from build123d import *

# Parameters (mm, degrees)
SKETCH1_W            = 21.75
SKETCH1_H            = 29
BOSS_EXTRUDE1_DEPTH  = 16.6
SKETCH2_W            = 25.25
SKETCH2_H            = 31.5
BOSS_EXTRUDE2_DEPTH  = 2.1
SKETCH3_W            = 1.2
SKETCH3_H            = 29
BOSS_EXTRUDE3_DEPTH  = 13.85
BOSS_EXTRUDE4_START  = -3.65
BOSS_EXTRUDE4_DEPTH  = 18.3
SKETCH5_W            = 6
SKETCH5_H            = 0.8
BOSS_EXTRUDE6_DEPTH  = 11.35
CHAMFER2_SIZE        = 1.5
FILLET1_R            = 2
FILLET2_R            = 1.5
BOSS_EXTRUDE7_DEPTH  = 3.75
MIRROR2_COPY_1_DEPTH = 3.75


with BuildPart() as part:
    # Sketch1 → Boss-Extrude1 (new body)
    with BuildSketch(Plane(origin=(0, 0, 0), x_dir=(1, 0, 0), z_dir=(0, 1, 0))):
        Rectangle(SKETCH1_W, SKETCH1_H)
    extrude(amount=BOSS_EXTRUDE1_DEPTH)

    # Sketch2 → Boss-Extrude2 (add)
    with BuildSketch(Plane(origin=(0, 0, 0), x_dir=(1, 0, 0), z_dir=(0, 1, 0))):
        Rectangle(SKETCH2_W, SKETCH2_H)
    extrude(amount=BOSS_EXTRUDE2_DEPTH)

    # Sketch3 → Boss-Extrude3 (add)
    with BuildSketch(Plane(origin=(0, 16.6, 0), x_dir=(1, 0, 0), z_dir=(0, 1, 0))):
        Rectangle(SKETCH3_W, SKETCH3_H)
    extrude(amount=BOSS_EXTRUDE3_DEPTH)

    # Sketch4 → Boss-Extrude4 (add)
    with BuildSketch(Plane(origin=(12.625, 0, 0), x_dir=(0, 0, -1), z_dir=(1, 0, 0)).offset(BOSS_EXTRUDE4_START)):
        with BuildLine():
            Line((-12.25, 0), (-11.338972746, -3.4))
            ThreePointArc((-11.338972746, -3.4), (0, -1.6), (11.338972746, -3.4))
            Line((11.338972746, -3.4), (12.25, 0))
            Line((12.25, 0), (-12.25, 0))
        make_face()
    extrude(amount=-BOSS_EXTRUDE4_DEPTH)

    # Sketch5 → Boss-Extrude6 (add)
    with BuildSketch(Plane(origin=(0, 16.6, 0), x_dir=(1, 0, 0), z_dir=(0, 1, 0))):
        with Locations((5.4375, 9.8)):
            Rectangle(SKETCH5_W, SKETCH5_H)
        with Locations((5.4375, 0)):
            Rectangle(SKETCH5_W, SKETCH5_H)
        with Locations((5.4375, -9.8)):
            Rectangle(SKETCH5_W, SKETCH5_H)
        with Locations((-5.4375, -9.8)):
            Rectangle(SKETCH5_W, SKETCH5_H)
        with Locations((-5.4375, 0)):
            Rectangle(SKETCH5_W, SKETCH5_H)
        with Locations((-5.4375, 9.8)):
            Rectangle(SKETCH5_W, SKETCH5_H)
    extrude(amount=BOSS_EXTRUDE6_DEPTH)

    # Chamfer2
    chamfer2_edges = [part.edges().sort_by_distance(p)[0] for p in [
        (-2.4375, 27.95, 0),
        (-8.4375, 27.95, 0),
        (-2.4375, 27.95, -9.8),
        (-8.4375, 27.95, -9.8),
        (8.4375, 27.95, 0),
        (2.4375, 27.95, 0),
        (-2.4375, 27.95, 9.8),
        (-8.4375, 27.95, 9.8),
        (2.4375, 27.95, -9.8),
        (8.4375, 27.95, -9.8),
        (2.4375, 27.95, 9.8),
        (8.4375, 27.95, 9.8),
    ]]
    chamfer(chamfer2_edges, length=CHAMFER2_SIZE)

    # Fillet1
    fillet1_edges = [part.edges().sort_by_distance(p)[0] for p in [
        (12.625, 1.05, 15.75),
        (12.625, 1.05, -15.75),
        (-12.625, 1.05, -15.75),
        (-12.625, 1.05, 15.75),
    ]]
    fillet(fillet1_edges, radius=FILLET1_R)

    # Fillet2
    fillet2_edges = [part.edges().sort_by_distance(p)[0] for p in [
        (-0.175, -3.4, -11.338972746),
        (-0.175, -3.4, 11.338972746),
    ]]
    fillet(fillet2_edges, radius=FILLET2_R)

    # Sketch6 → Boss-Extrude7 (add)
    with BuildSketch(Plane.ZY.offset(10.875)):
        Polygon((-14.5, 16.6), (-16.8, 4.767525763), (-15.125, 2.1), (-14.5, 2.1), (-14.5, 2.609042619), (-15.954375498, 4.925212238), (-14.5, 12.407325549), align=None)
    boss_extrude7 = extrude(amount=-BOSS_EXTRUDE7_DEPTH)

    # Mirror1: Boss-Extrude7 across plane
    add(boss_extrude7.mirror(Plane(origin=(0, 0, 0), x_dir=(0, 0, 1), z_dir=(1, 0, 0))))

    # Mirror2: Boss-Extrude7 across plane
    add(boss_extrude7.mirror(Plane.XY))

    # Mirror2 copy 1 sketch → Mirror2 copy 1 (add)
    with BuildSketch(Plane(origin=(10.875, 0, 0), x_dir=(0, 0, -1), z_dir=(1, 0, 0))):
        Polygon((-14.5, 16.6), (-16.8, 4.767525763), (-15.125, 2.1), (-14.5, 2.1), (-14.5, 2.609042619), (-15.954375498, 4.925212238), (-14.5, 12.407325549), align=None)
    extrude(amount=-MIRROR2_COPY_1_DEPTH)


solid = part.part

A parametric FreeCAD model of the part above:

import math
import FreeCAD as App
import Part
import Sketcher

V = App.Vector
Q = App.Units.Quantity


def edges_at(feature, points):
    """Names of the edges that pass closest to the given points."""
    edges = feature.Shape.Edges
    near = lambda p: min(range(len(edges)), key=lambda i: edges[i].distToShape(Part.Vertex(*p))[0])
    return sorted({f"Edge{near(p) + 1}" for p in points})

doc = App.newDocument("Part")
body = doc.addObject("PartDesign::Body", "Body")

# Sketch on XZ plane
sketch1 = body.newObject("Sketcher::SketchObject", "Sketch")
sketch1.AttachmentSupport = (doc.getObject("XZ_Plane"), [""])
sketch1.MapMode = "FlatFace"
sketch1.addGeometry(Part.LineSegment(V(-11, -14, 0), V(-11, 14, 0)), False)
sketch1.addGeometry(Part.LineSegment(V(-11, 14, 0), V(11, 14, 0)), False)
sketch1.addGeometry(Part.LineSegment(V(11, 14, 0), V(11, -14, 0)), False)
sketch1.addGeometry(Part.LineSegment(V(11, -14, 0), V(-11, -14, 0)), False)
sketch1.addConstraint(Sketcher.Constraint("Coincident", 0, 2, 1, 1))
sketch1.addConstraint(Sketcher.Constraint("Coincident", 1, 2, 2, 1))
sketch1.addConstraint(Sketcher.Constraint("Coincident", 2, 2, 3, 1))
sketch1.addConstraint(Sketcher.Constraint("Coincident", 3, 2, 0, 1))
sketch1.addConstraint(Sketcher.Constraint("Vertical", 0))
sketch1.addConstraint(Sketcher.Constraint("Horizontal", 1))
sketch1.addConstraint(Sketcher.Constraint("Vertical", 2))
sketch1.addConstraint(Sketcher.Constraint("Horizontal", 3))
sketch1.addConstraint(Sketcher.Constraint("Symmetric", 0, 2, 2, 2, -1, 1))
sketch1.addConstraint(Sketcher.Constraint("DistanceY", 0, 1, 0, 2, Q("29 mm")))
sketch1.addConstraint(Sketcher.Constraint("DistanceX", 1, 1, 1, 2, Q("21.75 mm")))
pad1 = body.newObject("PartDesign::Pad", "Pad")
pad1.Profile = sketch1
pad1.Length = 16.6
pad1.Reversed = True

# Sketch on XZ plane
sketch2 = body.newObject("Sketcher::SketchObject", "Sketch001")
sketch2.AttachmentSupport = (doc.getObject("XZ_Plane"), [""])
sketch2.MapMode = "FlatFace"
sketch2.addGeometry(Part.LineSegment(V(-13, -16, 0), V(-13, 16, 0)), False)
sketch2.addGeometry(Part.LineSegment(V(-13, 16, 0), V(13, 16, 0)), False)
sketch2.addGeometry(Part.LineSegment(V(13, 16, 0), V(13, -16, 0)), False)
sketch2.addGeometry(Part.LineSegment(V(13, -16, 0), V(-13, -16, 0)), False)
sketch2.addConstraint(Sketcher.Constraint("Coincident", 0, 2, 1, 1))
sketch2.addConstraint(Sketcher.Constraint("Coincident", 1, 2, 2, 1))
sketch2.addConstraint(Sketcher.Constraint("Coincident", 2, 2, 3, 1))
sketch2.addConstraint(Sketcher.Constraint("Coincident", 3, 2, 0, 1))
sketch2.addConstraint(Sketcher.Constraint("Vertical", 0))
sketch2.addConstraint(Sketcher.Constraint("Horizontal", 1))
sketch2.addConstraint(Sketcher.Constraint("Vertical", 2))
sketch2.addConstraint(Sketcher.Constraint("Horizontal", 3))
sketch2.addConstraint(Sketcher.Constraint("Symmetric", 0, 2, 2, 2, -1, 1))
sketch2.addConstraint(Sketcher.Constraint("DistanceY", 0, 1, 0, 2, Q("31.5 mm")))
sketch2.addConstraint(Sketcher.Constraint("DistanceX", 1, 1, 1, 2, Q("25.25 mm")))
pad2 = body.newObject("PartDesign::Pad", "Pad001")
pad2.Profile = sketch2
pad2.Length = 2.1
pad2.Reversed = True

# Sketch on XZ plane
sketch3 = body.newObject("Sketcher::SketchObject", "Sketch002")
sketch3.AttachmentSupport = (doc.getObject("XZ_Plane"), [""])
sketch3.MapMode = "FlatFace"
sketch3.AttachmentOffset = App.Placement(V(0, 0, -16.6), App.Rotation())
sketch3.addGeometry(Part.LineSegment(V(-0.6, -14.5, 0), V(-0.6, 14.5, 0)), False)
sketch3.addGeometry(Part.LineSegment(V(-0.6, 14.5, 0), V(0.6, 14.5, 0)), False)
sketch3.addGeometry(Part.LineSegment(V(0.6, 14.5, 0), V(0.6, -14.5, 0)), False)
sketch3.addGeometry(Part.LineSegment(V(0.6, -14.5, 0), V(-0.6, -14.5, 0)), False)
sketch3.addConstraint(Sketcher.Constraint("Coincident", 0, 2, 1, 1))
sketch3.addConstraint(Sketcher.Constraint("Coincident", 1, 2, 2, 1))
sketch3.addConstraint(Sketcher.Constraint("Coincident", 2, 2, 3, 1))
sketch3.addConstraint(Sketcher.Constraint("Coincident", 3, 2, 0, 1))
sketch3.addConstraint(Sketcher.Constraint("Vertical", 0))
sketch3.addConstraint(Sketcher.Constraint("Horizontal", 1))
sketch3.addConstraint(Sketcher.Constraint("Vertical", 2))
sketch3.addConstraint(Sketcher.Constraint("Horizontal", 3))
sketch3.addConstraint(Sketcher.Constraint("Symmetric", 0, 2, 2, 2, -1, 1))
sketch3.addConstraint(Sketcher.Constraint("DistanceY", 0, 1, 0, 2, Q("29 mm")))
sketch3.addConstraint(Sketcher.Constraint("DistanceX", 1, 1, 1, 2, Q("1.2 mm")))
pad3 = body.newObject("PartDesign::Pad", "Pad002")
pad3.Profile = sketch3
pad3.Length = 13.85
pad3.Reversed = True

# Sketch on YZ plane
sketch4 = body.newObject("Sketcher::SketchObject", "Sketch003")
sketch4.AttachmentSupport = (doc.getObject("YZ_Plane"), [""])
sketch4.MapMode = "FlatFace"
sketch4.AttachmentOffset = App.Placement(V(0, 0, 8.975), App.Rotation())
sketch4.addGeometry(Part.LineSegment(V(0, 12.2, 0), V(-3.4, 11.3, 0)), False)
sketch4.addGeometry(Part.ArcOfCircle(Part.Circle(V(-38.2, 0, 0), V(0, 0, 1), 36.6), math.radians(-18), math.radians(18)), False)
sketch4.addGeometry(Part.LineSegment(V(-3.4, -11.3, 0), V(0, -12.2, 0)), False)
sketch4.addGeometry(Part.LineSegment(V(0, -12.2, 0), V(0, 12.2, 0)), False)
sketch4.addConstraint(Sketcher.Constraint("Coincident", 0, 2, 1, 2))
sketch4.addConstraint(Sketcher.Constraint("Coincident", 1, 1, 2, 1))
sketch4.addConstraint(Sketcher.Constraint("Coincident", 2, 2, 3, 1))
sketch4.addConstraint(Sketcher.Constraint("Coincident", 3, 2, 0, 1))
sketch4.addConstraint(Sketcher.Constraint("Vertical", 3))
sketch4.addConstraint(Sketcher.Constraint("Symmetric", 2, 2, 3, 2, -1, 1))
sketch4.addConstraint(Sketcher.Constraint("Symmetric", 0, 2, 1, 1, -1))
sketch4.addConstraint(Sketcher.Constraint("Angle", 0, Q("-165 deg")))
sketch4.addConstraint(Sketcher.Constraint("DistanceY", 3, 1, 3, 2, Q("24.5 mm")))
sketch4.addConstraint(Sketcher.Constraint("DistanceX", 0, 2, -1, 1, Q("3.4 mm")))
sketch4.addConstraint(Sketcher.Constraint("Radius", 1, Q("36.614529 mm")))
pad4 = body.newObject("PartDesign::Pad", "Pad003")
pad4.Profile = sketch4
pad4.Length = 18.3
pad4.Reversed = True

# Sketch on XZ plane
sketch5 = body.newObject("Sketcher::SketchObject", "Sketch004")
sketch5.AttachmentSupport = (doc.getObject("XZ_Plane"), [""])
sketch5.MapMode = "FlatFace"
sketch5.AttachmentOffset = App.Placement(V(0, 0, -16.6), App.Rotation())
sketch5.addGeometry(Part.LineSegment(V(2.4, -10.2, 0), V(2.4, -9.4, 0)), False)
sketch5.addGeometry(Part.LineSegment(V(2.4, -9.4, 0), V(8.4, -9.4, 0)), False)
sketch5.addGeometry(Part.LineSegment(V(8.4, -9.4, 0), V(8.4, -10.2, 0)), False)
sketch5.addGeometry(Part.LineSegment(V(8.4, -10.2, 0), V(2.4, -10.2, 0)), False)
sketch5.addGeometry(Part.LineSegment(V(2.4, -0.4, 0), V(2.4, 0.4, 0)), False)
sketch5.addGeometry(Part.LineSegment(V(2.4, 0.4, 0), V(8.4, 0.4, 0)), False)
sketch5.addGeometry(Part.LineSegment(V(8.4, 0.4, 0), V(8.4, -0.4, 0)), False)
sketch5.addGeometry(Part.LineSegment(V(8.4, -0.4, 0), V(2.4, -0.4, 0)), False)
sketch5.addGeometry(Part.LineSegment(V(2.4, 9.4, 0), V(2.4, 10.2, 0)), False)
sketch5.addGeometry(Part.LineSegment(V(2.4, 10.2, 0), V(8.4, 10.2, 0)), False)
sketch5.addGeometry(Part.LineSegment(V(8.4, 10.2, 0), V(8.4, 9.4, 0)), False)
sketch5.addGeometry(Part.LineSegment(V(8.4, 9.4, 0), V(2.4, 9.4, 0)), False)
sketch5.addGeometry(Part.LineSegment(V(-8.4, 9.4, 0), V(-8.4, 10.2, 0)), False)
sketch5.addGeometry(Part.LineSegment(V(-8.4, 10.2, 0), V(-2.4, 10.2, 0)), False)
sketch5.addGeometry(Part.LineSegment(V(-2.4, 10.2, 0), V(-2.4, 9.4, 0)), False)
sketch5.addGeometry(Part.LineSegment(V(-2.4, 9.4, 0), V(-8.4, 9.4, 0)), False)
sketch5.addGeometry(Part.LineSegment(V(-8.4, -0.4, 0), V(-8.4, 0.4, 0)), False)
sketch5.addGeometry(Part.LineSegment(V(-8.4, 0.4, 0), V(-2.4, 0.4, 0)), False)
sketch5.addGeometry(Part.LineSegment(V(-2.4, 0.4, 0), V(-2.4, -0.4, 0)), False)
sketch5.addGeometry(Part.LineSegment(V(-2.4, -0.4, 0), V(-8.4, -0.4, 0)), False)
sketch5.addGeometry(Part.LineSegment(V(-8.4, -10.2, 0), V(-8.4, -9.4, 0)), False)
sketch5.addGeometry(Part.LineSegment(V(-8.4, -9.4, 0), V(-2.4, -9.4, 0)), False)
sketch5.addGeometry(Part.LineSegment(V(-2.4, -9.4, 0), V(-2.4, -10.2, 0)), False)
sketch5.addGeometry(Part.LineSegment(V(-2.4, -10.2, 0), V(-8.4, -10.2, 0)), False)
sketch5.addConstraint(Sketcher.Constraint("Coincident", 0, 2, 1, 1))
sketch5.addConstraint(Sketcher.Constraint("Coincident", 1, 2, 2, 1))
sketch5.addConstraint(Sketcher.Constraint("Coincident", 2, 2, 3, 1))
sketch5.addConstraint(Sketcher.Constraint("Coincident", 3, 2, 0, 1))
sketch5.addConstraint(Sketcher.Constraint("Coincident", 4, 2, 5, 1))
sketch5.addConstraint(Sketcher.Constraint("Coincident", 5, 2, 6, 1))
sketch5.addConstraint(Sketcher.Constraint("Coincident", 6, 2, 7, 1))
sketch5.addConstraint(Sketcher.Constraint("Coincident", 7, 2, 4, 1))
sketch5.addConstraint(Sketcher.Constraint("Coincident", 8, 2, 9, 1))
sketch5.addConstraint(Sketcher.Constraint("Coincident", 9, 2, 10, 1))
sketch5.addConstraint(Sketcher.Constraint("Coincident", 10, 2, 11, 1))
sketch5.addConstraint(Sketcher.Constraint("Coincident", 11, 2, 8, 1))
sketch5.addConstraint(Sketcher.Constraint("Coincident", 12, 2, 13, 1))
sketch5.addConstraint(Sketcher.Constraint("Coincident", 13, 2, 14, 1))
sketch5.addConstraint(Sketcher.Constraint("Coincident", 14, 2, 15, 1))
sketch5.addConstraint(Sketcher.Constraint("Coincident", 15, 2, 12, 1))
sketch5.addConstraint(Sketcher.Constraint("Coincident", 16, 2, 17, 1))
sketch5.addConstraint(Sketcher.Constraint("Coincident", 17, 2, 18, 1))
sketch5.addConstraint(Sketcher.Constraint("Coincident", 18, 2, 19, 1))
sketch5.addConstraint(Sketcher.Constraint("Coincident", 19, 2, 16, 1))
sketch5.addConstraint(Sketcher.Constraint("Coincident", 20, 2, 21, 1))
sketch5.addConstraint(Sketcher.Constraint("Coincident", 21, 2, 22, 1))
sketch5.addConstraint(Sketcher.Constraint("Coincident", 22, 2, 23, 1))
sketch5.addConstraint(Sketcher.Constraint("Coincident", 23, 2, 20, 1))
sketch5.addConstraint(Sketcher.Constraint("Vertical", 0))
sketch5.addConstraint(Sketcher.Constraint("Horizontal", 1))
sketch5.addConstraint(Sketcher.Constraint("Vertical", 2))
sketch5.addConstraint(Sketcher.Constraint("Horizontal", 3))
sketch5.addConstraint(Sketcher.Constraint("Vertical", 4))
sketch5.addConstraint(Sketcher.Constraint("Horizontal", 5))
sketch5.addConstraint(Sketcher.Constraint("Vertical", 6))
sketch5.addConstraint(Sketcher.Constraint("Horizontal", 7))
sketch5.addConstraint(Sketcher.Constraint("Vertical", 8))
sketch5.addConstraint(Sketcher.Constraint("Horizontal", 9))
sketch5.addConstraint(Sketcher.Constraint("Vertical", 10))
sketch5.addConstraint(Sketcher.Constraint("Horizontal", 11))
sketch5.addConstraint(Sketcher.Constraint("Vertical", 12))
sketch5.addConstraint(Sketcher.Constraint("Horizontal", 13))
sketch5.addConstraint(Sketcher.Constraint("Vertical", 14))
sketch5.addConstraint(Sketcher.Constraint("Horizontal", 15))
sketch5.addConstraint(Sketcher.Constraint("Vertical", 16))
sketch5.addConstraint(Sketcher.Constraint("Horizontal", 17))
sketch5.addConstraint(Sketcher.Constraint("Vertical", 18))
sketch5.addConstraint(Sketcher.Constraint("Horizontal", 19))
sketch5.addConstraint(Sketcher.Constraint("Vertical", 20))
sketch5.addConstraint(Sketcher.Constraint("Horizontal", 21))
sketch5.addConstraint(Sketcher.Constraint("Vertical", 22))
sketch5.addConstraint(Sketcher.Constraint("Horizontal", 23))
sketch5.addConstraint(Sketcher.Constraint("Symmetric", 2, 2, 12, 2, -1, 1))
sketch5.addConstraint(Sketcher.Constraint("Symmetric", 0, 2, 14, 2, -1, 1))
sketch5.addConstraint(Sketcher.Constraint("Symmetric", 6, 2, 16, 2, -1, 1))
sketch5.addConstraint(Sketcher.Constraint("Symmetric", 4, 2, 18, 2, -1, 1))
sketch5.addConstraint(Sketcher.Constraint("Symmetric", 10, 2, 20, 2, -1, 1))
sketch5.addConstraint(Sketcher.Constraint("Symmetric", 8, 2, 22, 2, -1, 1))
sketch5.addConstraint(Sketcher.Constraint("Symmetric", 9, 2, 12, 2, -2))
sketch5.addConstraint(Sketcher.Constraint("Symmetric", 11, 2, 14, 2, -2))
sketch5.addConstraint(Sketcher.Constraint("Horizontal", 5, 2, 16, 2))
sketch5.addConstraint(Sketcher.Constraint("Vertical", 3, 2, 4, 2))
sketch5.addConstraint(Sketcher.Constraint("Vertical", 2, 2, 5, 2))
sketch5.addConstraint(Sketcher.Constraint("Equal", 2, 4))
sketch5.addConstraint(Sketcher.Constraint("DistanceX", 1, 1, 1, 2, Q("6 mm")))
sketch5.addConstraint(Sketcher.Constraint("DistanceY", 0, 1, 0, 2, Q("0.8 mm")))
sketch5.addConstraint(Sketcher.Constraint("DistanceY", 1, 2, 6, 2, Q("9 mm")))
sketch5.addConstraint(Sketcher.Constraint("DistanceX", 12, 2, 8, 2, Q("10.875 mm")))
pad5 = body.newObject("PartDesign::Pad", "Pad004")
pad5.Profile = sketch5
pad5.Length = 11.35
pad5.Reversed = True
doc.recompute()

chamfer = body.newObject("PartDesign::Chamfer", "Chamfer")
chamfer.Base = (pad5, edges_at(pad5, [
    (-2.438, 27.95, 0),
    (-8.438, 27.95, 0),
    (-2.438, 27.95, -9.8),
    (-8.438, 27.95, -9.8),
    (8.438, 27.95, 0),
    (2.438, 27.95, 0),
    (-2.438, 27.95, 9.8),
    (-8.438, 27.95, 9.8),
    (2.438, 27.95, -9.8),
    (8.438, 27.95, -9.8),
    (2.438, 27.95, 9.8),
    (8.438, 27.95, 9.8),
]))
chamfer.Size = 1.5
doc.recompute()

fillet = body.newObject("PartDesign::Fillet", "Fillet")
fillet.Base = (chamfer, edges_at(chamfer, [
    (12.625, 1.05, 15.75),
    (12.625, 1.05, -15.75),
    (-12.625, 1.05, -15.75),
    (-12.625, 1.05, 15.75),
]))
fillet.Radius = 2
doc.recompute()

fillet2 = body.newObject("PartDesign::Fillet", "Fillet001")
fillet2.Base = (fillet, edges_at(fillet, [(-0.175, -3.4, -11.339), (-0.175, -3.4, 11.339)]))
fillet2.Radius = 1.5

# Sketch on YZ plane
sketch6 = body.newObject("Sketcher::SketchObject", "Sketch005")
sketch6.AttachmentSupport = (doc.getObject("YZ_Plane"), [""])
sketch6.MapMode = "FlatFace"
sketch6.AttachmentOffset = App.Placement(V(0, 0, -10.875), App.Rotation())
sketch6.addGeometry(Part.LineSegment(V(16.6, -14.5, 0), V(4.8, -16.8, 0)), False)
sketch6.addGeometry(Part.LineSegment(V(4.8, -16.8, 0), V(2.1, -15.1, 0)), False)
sketch6.addGeometry(Part.LineSegment(V(2.1, -15.1, 0), V(2.1, -14.5, 0)), False)
sketch6.addGeometry(Part.LineSegment(V(2.1, -14.5, 0), V(2.6, -14.5, 0)), False)
sketch6.addGeometry(Part.LineSegment(V(2.6, -14.5, 0), V(4.9, -16, 0)), False)
sketch6.addGeometry(Part.LineSegment(V(4.9, -16, 0), V(12.4, -14.5, 0)), False)
sketch6.addGeometry(Part.LineSegment(V(12.4, -14.5, 0), V(16.6, -14.5, 0)), False)
sketch6.addConstraint(Sketcher.Constraint("Coincident", 0, 2, 1, 1))
sketch6.addConstraint(Sketcher.Constraint("Coincident", 1, 2, 2, 1))
sketch6.addConstraint(Sketcher.Constraint("Coincident", 2, 2, 3, 1))
sketch6.addConstraint(Sketcher.Constraint("Coincident", 3, 2, 4, 1))
sketch6.addConstraint(Sketcher.Constraint("Coincident", 4, 2, 5, 1))
sketch6.addConstraint(Sketcher.Constraint("Coincident", 5, 2, 6, 1))
sketch6.addConstraint(Sketcher.Constraint("Coincident", 6, 2, 0, 1))
sketch6.addConstraint(Sketcher.Constraint("Vertical", 2))
sketch6.addConstraint(Sketcher.Constraint("Horizontal", 3))
sketch6.addConstraint(Sketcher.Constraint("Horizontal", 6))
sketch6.addConstraint(Sketcher.Constraint("Parallel", 1, 4))
sketch6.addConstraint(Sketcher.Constraint("Parallel", 0, 5))
sketch6.addConstraint(Sketcher.Constraint("Horizontal", 3, 2, 5, 2))
sketch6.addConstraint(Sketcher.Constraint("Angle", 0, Q("-169 deg")))
sketch6.addConstraint(Sketcher.Constraint("DistanceY", 0, 2, -1, 1, Q("16.8 mm")))
sketch6.addConstraint(Sketcher.Constraint("DistanceX", -1, 1, 1, 2, Q("2.1 mm")))
sketch6.addConstraint(Sketcher.Constraint("DistanceY", 2, 2, -1, 1, Q("14.5 mm")))
sketch6.addConstraint(Sketcher.Constraint("DistanceX", -1, 1, 6, 2, Q("16.6 mm")))
sketch6.addConstraint(Sketcher.Constraint("DistanceY", 2, 1, 2, 2, Q("0.625 mm")))
sketch6.addConstraint(Sketcher.Constraint("DistanceX", 0, 2, 5, 2, Q("7.6398 mm")))
sketch6.addConstraint(Sketcher.Constraint("Distance", 4, Q("2.734931 mm")))
pad6 = body.newObject("PartDesign::Pad", "Pad005")
pad6.Profile = sketch6
pad6.Length = 3.75
doc.recompute()

mirrored = body.newObject("PartDesign::Mirrored", "Mirrored")
mirrored.Originals = [pad6]
mirrored.MirrorPlane = (doc.getObject("YZ_Plane"), [""])
body.Tip = mirrored
doc.recompute()

mirrored2 = body.newObject("PartDesign::Mirrored", "Mirrored001")
mirrored2.Originals = [pad6]
mirrored2.MirrorPlane = (doc.getObject("XY_Plane"), [""])
body.Tip = mirrored2

# Sketch on YZ plane
sketch7 = body.newObject("Sketcher::SketchObject", "Sketch006")
sketch7.AttachmentSupport = (doc.getObject("YZ_Plane"), [""])
sketch7.MapMode = "FlatFace"
sketch7.AttachmentOffset = App.Placement(V(0, 0, 10.875), App.Rotation())
sketch7.addGeometry(Part.LineSegment(V(16.6, 14.5, 0), V(4.8, 16.8, 0)), False)
sketch7.addGeometry(Part.LineSegment(V(4.8, 16.8, 0), V(2.1, 15.1, 0)), False)
sketch7.addGeometry(Part.LineSegment(V(2.1, 15.1, 0), V(2.1, 14.5, 0)), False)
sketch7.addGeometry(Part.LineSegment(V(2.1, 14.5, 0), V(2.6, 14.5, 0)), False)
sketch7.addGeometry(Part.LineSegment(V(2.6, 14.5, 0), V(4.9, 16, 0)), False)
sketch7.addGeometry(Part.LineSegment(V(4.9, 16, 0), V(12.4, 14.5, 0)), False)
sketch7.addGeometry(Part.LineSegment(V(12.4, 14.5, 0), V(16.6, 14.5, 0)), False)
sketch7.addConstraint(Sketcher.Constraint("Coincident", 0, 2, 1, 1))
sketch7.addConstraint(Sketcher.Constraint("Coincident", 1, 2, 2, 1))
sketch7.addConstraint(Sketcher.Constraint("Coincident", 2, 2, 3, 1))
sketch7.addConstraint(Sketcher.Constraint("Coincident", 3, 2, 4, 1))
sketch7.addConstraint(Sketcher.Constraint("Coincident", 4, 2, 5, 1))
sketch7.addConstraint(Sketcher.Constraint("Coincident", 5, 2, 6, 1))
sketch7.addConstraint(Sketcher.Constraint("Coincident", 6, 2, 0, 1))
sketch7.addConstraint(Sketcher.Constraint("Vertical", 2))
sketch7.addConstraint(Sketcher.Constraint("Horizontal", 3))
sketch7.addConstraint(Sketcher.Constraint("Horizontal", 6))
sketch7.addConstraint(Sketcher.Constraint("Parallel", 1, 4))
sketch7.addConstraint(Sketcher.Constraint("Parallel", 0, 5))
sketch7.addConstraint(Sketcher.Constraint("Horizontal", 3, 2, 5, 2))
sketch7.addConstraint(Sketcher.Constraint("Angle", 0, Q("169 deg")))
sketch7.addConstraint(Sketcher.Constraint("DistanceY", -1, 1, 0, 2, Q("16.8 mm")))
sketch7.addConstraint(Sketcher.Constraint("DistanceX", -1, 1, 1, 2, Q("2.1 mm")))
sketch7.addConstraint(Sketcher.Constraint("DistanceY", -1, 1, 2, 2, Q("14.5 mm")))
sketch7.addConstraint(Sketcher.Constraint("DistanceX", -1, 1, 6, 2, Q("16.6 mm")))
sketch7.addConstraint(Sketcher.Constraint("DistanceY", 2, 2, 2, 1, Q("0.625 mm")))
sketch7.addConstraint(Sketcher.Constraint("DistanceX", 0, 2, 5, 2, Q("7.6398 mm")))
sketch7.addConstraint(Sketcher.Constraint("Distance", 4, Q("2.734931 mm")))
pad7 = body.newObject("PartDesign::Pad", "Pad006")
pad7.Profile = sketch7
pad7.Length = 3.75
pad7.Reversed = True

doc.recompute()
